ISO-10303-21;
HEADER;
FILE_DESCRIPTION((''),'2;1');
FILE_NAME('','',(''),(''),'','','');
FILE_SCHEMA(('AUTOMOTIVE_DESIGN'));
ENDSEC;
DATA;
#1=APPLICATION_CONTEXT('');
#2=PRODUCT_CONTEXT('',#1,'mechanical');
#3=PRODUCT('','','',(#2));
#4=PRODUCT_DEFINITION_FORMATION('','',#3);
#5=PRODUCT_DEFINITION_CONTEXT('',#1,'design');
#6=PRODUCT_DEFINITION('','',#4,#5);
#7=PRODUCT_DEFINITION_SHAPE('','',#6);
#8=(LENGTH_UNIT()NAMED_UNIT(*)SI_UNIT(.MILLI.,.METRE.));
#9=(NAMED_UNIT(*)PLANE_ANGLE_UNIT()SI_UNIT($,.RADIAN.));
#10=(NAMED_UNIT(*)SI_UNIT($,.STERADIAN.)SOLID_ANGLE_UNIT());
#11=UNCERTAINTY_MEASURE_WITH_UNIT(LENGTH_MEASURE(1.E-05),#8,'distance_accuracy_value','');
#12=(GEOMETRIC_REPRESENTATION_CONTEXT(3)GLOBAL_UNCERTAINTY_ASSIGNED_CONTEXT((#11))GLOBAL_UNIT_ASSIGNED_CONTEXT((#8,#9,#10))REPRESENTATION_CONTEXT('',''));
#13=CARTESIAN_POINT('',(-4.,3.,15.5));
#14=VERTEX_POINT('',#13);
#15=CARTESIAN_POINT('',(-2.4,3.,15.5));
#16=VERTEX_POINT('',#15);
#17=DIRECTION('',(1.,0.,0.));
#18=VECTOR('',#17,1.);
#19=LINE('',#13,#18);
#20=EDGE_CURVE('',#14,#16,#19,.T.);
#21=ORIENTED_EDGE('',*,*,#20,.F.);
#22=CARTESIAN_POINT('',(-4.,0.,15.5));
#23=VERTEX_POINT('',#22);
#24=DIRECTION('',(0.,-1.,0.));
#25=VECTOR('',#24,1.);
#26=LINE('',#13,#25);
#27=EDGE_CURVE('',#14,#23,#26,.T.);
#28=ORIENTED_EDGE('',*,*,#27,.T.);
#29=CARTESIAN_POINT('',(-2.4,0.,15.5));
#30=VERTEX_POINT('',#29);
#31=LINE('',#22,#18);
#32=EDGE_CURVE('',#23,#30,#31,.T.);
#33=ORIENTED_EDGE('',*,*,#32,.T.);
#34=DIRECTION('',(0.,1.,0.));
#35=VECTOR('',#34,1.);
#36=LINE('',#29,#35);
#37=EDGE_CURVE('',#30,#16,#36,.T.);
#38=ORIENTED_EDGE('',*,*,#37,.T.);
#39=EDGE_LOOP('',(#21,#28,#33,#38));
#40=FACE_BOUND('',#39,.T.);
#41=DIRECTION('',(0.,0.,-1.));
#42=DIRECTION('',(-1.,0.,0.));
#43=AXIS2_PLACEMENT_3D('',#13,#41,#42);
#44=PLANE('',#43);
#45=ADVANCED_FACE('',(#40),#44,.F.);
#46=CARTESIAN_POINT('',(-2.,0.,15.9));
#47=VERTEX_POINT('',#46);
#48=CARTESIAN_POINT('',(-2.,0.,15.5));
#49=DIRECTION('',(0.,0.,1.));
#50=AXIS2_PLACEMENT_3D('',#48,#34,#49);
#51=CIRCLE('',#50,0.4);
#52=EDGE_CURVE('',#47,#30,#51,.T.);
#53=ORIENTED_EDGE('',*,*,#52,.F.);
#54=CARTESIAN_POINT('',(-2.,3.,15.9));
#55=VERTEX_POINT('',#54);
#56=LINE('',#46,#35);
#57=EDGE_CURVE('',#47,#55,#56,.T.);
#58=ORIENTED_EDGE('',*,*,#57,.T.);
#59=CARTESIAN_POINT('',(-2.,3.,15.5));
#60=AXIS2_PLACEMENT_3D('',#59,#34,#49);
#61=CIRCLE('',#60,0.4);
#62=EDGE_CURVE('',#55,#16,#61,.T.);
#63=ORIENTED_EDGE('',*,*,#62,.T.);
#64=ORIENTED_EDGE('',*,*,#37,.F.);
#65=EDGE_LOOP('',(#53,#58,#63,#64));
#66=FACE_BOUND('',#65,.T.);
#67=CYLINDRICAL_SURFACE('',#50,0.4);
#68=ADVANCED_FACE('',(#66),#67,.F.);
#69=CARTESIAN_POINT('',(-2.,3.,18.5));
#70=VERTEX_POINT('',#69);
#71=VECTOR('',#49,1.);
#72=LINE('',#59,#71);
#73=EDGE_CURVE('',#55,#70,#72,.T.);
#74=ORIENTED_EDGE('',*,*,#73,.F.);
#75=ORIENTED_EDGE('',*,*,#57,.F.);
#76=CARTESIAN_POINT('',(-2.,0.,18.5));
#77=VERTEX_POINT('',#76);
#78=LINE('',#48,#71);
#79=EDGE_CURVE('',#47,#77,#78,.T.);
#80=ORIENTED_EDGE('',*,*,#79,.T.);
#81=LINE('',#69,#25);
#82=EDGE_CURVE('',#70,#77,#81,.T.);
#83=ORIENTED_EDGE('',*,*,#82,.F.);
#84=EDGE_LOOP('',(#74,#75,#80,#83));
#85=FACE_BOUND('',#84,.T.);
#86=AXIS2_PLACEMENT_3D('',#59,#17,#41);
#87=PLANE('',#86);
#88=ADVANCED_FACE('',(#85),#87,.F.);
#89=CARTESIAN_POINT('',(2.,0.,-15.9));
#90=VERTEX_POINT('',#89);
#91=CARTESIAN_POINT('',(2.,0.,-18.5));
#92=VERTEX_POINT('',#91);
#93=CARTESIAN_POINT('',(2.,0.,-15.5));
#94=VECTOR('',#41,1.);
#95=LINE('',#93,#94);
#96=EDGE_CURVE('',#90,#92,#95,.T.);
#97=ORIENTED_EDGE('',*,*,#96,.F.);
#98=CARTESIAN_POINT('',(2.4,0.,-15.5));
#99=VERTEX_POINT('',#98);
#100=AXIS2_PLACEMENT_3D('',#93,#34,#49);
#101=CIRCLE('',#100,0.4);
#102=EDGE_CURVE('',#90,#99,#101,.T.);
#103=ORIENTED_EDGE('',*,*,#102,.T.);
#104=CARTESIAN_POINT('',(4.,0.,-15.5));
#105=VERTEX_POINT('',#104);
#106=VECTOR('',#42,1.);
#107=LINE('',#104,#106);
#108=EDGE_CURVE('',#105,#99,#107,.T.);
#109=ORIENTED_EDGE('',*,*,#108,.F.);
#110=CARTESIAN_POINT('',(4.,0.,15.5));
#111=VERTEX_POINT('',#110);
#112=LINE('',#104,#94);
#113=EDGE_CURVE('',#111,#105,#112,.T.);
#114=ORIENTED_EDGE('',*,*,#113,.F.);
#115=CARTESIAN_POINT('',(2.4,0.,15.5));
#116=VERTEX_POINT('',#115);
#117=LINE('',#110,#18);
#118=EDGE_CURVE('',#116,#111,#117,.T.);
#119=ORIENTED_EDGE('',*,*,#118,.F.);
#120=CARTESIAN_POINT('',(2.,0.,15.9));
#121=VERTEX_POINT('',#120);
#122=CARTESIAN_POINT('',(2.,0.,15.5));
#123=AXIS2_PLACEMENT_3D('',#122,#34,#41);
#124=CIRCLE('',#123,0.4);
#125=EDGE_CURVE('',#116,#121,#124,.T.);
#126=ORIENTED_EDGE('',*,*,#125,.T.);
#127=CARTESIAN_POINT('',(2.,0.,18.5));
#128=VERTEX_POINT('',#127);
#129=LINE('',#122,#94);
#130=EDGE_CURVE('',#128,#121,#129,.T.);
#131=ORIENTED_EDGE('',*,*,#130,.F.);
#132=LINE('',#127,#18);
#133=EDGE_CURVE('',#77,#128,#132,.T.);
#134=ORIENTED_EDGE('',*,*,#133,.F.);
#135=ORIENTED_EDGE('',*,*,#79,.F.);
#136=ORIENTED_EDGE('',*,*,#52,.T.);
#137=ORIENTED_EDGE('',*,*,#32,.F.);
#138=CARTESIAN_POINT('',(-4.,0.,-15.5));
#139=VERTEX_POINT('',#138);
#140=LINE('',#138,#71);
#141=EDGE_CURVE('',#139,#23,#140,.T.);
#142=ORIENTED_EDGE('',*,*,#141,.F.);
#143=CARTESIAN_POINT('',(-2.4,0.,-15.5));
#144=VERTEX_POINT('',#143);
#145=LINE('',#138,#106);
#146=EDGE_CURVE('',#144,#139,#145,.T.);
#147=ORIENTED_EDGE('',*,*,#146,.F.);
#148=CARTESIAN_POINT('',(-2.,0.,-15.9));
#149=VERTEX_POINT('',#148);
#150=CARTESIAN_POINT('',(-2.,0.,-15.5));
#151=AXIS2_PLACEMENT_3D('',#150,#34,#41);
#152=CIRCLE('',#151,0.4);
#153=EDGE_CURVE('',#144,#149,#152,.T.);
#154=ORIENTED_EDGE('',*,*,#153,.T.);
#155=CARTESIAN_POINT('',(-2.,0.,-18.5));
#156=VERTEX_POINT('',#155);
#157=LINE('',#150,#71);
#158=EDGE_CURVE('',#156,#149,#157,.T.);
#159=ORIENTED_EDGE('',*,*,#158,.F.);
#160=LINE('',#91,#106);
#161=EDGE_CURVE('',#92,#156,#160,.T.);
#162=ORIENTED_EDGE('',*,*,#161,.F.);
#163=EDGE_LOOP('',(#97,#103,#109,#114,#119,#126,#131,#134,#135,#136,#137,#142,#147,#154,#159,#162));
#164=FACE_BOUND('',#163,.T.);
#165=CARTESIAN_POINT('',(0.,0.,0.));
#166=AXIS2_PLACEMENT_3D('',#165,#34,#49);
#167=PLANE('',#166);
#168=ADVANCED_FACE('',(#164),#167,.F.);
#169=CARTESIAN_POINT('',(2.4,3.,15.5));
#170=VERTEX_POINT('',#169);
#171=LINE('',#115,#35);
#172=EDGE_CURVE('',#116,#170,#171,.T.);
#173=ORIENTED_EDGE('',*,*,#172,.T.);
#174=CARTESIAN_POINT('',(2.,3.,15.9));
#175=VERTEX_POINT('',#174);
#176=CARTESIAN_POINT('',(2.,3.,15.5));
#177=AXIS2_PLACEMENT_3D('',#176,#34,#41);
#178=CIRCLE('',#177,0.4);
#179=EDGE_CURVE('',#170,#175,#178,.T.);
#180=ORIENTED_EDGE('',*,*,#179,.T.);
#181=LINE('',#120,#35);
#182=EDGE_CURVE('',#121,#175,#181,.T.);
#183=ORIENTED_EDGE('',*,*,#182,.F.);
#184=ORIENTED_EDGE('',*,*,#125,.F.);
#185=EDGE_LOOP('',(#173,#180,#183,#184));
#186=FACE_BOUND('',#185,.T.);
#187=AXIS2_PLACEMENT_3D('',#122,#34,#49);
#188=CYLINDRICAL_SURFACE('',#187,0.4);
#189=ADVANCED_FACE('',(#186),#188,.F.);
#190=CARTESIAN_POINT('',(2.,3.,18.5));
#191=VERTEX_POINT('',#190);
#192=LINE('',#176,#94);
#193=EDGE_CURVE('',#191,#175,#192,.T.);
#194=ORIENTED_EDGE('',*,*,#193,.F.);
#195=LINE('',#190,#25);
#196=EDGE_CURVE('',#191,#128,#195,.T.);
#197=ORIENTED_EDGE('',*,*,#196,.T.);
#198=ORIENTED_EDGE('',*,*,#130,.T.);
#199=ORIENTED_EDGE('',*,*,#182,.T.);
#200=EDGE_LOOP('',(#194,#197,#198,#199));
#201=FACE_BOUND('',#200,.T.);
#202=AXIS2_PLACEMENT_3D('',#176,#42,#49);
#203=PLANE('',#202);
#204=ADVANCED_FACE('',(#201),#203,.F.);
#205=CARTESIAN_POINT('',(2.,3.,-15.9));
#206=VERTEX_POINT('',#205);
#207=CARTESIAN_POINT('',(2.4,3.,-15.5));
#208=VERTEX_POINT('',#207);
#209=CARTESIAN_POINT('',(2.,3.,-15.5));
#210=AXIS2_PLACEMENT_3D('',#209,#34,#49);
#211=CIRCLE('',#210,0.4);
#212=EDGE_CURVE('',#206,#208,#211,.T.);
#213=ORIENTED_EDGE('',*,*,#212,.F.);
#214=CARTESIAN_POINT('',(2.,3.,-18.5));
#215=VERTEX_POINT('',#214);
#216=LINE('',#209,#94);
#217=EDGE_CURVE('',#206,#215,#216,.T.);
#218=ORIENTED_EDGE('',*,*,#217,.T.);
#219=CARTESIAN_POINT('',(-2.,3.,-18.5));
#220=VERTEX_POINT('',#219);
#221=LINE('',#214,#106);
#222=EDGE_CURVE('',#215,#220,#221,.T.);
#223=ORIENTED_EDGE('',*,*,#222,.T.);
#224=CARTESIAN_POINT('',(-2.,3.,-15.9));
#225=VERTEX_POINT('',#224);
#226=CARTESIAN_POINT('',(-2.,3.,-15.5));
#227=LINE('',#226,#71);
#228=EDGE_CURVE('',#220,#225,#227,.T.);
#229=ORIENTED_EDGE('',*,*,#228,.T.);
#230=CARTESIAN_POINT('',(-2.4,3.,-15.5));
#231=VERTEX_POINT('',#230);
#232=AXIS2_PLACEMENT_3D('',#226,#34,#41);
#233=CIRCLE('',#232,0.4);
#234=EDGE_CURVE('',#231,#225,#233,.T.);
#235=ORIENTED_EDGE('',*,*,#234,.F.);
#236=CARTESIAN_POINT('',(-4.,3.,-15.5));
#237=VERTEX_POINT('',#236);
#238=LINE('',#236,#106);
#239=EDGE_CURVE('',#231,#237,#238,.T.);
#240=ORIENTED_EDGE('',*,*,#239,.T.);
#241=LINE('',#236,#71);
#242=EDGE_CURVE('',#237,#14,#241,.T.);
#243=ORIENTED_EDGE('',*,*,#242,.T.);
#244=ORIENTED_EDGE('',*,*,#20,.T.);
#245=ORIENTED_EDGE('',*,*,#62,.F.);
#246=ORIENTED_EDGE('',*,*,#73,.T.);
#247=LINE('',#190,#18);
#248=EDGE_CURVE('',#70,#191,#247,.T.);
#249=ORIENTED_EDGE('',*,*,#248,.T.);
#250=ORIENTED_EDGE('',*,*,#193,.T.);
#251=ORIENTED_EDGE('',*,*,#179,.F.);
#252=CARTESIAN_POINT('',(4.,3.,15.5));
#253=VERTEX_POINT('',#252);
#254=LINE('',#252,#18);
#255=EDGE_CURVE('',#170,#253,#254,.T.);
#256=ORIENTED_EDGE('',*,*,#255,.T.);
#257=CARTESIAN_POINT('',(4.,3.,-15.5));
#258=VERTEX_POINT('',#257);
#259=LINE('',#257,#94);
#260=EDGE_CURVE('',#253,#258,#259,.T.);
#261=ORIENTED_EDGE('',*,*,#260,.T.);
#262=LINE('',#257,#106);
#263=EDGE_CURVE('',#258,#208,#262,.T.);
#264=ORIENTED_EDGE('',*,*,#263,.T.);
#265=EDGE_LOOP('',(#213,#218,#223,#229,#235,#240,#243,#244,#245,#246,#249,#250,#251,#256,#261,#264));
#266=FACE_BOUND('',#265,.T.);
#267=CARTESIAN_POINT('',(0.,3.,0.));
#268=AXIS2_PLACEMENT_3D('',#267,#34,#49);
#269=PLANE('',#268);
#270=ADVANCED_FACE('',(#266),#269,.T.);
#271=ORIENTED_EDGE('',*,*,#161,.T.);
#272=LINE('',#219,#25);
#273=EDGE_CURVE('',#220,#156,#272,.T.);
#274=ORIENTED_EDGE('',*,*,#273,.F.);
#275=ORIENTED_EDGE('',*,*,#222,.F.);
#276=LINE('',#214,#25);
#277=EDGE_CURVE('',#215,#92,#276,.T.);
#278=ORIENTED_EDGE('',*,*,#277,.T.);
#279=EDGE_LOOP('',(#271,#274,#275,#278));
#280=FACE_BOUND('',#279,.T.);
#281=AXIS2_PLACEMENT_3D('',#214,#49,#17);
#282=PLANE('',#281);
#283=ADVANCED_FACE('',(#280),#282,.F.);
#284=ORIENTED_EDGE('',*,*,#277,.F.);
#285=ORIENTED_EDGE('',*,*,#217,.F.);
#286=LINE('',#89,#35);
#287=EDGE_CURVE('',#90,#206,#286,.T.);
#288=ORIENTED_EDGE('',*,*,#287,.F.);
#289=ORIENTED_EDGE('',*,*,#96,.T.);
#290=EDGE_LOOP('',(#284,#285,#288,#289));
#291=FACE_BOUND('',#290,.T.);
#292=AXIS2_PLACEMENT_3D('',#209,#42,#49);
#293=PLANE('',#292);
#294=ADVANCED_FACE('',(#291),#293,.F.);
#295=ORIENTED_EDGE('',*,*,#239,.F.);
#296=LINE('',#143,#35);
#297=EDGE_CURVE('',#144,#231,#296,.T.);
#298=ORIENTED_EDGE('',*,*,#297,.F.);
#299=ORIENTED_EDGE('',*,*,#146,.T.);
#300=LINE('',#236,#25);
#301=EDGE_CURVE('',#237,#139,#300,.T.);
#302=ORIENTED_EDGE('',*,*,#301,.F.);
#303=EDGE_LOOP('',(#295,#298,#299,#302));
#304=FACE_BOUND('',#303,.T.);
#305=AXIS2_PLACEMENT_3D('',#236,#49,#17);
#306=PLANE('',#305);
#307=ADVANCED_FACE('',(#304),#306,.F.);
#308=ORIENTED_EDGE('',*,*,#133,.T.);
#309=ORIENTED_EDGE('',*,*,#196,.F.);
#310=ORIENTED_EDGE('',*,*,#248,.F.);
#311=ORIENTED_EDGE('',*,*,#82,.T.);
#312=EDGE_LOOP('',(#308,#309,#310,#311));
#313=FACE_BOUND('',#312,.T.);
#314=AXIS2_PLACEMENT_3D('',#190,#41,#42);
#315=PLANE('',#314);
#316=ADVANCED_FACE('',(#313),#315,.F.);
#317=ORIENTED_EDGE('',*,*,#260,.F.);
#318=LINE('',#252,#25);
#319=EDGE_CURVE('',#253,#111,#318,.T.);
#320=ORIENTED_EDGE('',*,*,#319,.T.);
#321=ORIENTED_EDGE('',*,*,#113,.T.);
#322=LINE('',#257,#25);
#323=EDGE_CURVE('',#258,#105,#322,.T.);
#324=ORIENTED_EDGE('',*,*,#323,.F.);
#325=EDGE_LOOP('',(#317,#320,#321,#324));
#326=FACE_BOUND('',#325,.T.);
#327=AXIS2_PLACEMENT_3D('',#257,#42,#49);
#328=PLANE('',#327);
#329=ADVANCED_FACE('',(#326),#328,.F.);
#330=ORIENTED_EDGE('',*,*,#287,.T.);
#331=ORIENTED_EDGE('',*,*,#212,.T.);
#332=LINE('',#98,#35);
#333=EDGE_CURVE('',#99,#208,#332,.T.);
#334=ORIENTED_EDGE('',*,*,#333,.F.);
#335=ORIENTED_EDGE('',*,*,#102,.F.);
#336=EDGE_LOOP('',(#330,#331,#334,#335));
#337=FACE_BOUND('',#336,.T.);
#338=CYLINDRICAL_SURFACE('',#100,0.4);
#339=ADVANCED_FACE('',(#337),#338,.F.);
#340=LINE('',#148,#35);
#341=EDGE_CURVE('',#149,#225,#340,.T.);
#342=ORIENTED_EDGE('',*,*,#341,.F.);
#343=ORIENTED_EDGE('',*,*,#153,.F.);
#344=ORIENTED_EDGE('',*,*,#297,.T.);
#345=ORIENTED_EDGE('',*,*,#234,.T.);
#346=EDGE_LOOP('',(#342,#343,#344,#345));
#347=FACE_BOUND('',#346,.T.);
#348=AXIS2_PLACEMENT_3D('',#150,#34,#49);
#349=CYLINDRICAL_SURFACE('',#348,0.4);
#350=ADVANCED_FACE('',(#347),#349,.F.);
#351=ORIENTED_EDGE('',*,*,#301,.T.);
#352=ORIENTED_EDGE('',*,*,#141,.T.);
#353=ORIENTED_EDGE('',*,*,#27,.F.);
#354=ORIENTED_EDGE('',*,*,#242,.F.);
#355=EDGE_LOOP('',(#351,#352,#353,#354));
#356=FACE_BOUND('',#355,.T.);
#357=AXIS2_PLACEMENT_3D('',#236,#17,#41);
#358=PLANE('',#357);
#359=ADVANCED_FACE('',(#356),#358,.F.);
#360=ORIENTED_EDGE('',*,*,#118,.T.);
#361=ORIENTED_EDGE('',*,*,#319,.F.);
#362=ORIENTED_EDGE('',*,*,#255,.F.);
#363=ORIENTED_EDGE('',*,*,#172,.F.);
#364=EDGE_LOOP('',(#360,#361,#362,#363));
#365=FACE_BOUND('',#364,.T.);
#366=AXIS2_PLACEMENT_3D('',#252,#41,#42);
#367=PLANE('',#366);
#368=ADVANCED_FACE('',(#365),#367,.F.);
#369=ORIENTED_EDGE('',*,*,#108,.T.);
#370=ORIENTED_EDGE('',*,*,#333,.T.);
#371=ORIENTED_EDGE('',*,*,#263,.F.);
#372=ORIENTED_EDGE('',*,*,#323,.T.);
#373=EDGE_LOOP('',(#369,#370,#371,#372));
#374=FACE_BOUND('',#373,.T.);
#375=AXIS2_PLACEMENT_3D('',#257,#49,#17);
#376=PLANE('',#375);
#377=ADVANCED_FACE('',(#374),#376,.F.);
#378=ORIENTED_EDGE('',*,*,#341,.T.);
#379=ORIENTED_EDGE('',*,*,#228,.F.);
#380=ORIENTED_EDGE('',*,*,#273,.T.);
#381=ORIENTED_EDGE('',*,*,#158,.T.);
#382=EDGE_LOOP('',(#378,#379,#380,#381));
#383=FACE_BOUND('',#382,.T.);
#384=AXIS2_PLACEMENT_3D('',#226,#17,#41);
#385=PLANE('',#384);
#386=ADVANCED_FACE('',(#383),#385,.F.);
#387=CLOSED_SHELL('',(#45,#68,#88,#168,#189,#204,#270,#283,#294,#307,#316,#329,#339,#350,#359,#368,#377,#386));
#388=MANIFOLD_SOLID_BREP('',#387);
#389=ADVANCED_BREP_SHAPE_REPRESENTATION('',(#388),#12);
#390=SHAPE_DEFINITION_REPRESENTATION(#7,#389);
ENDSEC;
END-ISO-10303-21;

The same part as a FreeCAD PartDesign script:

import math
import FreeCAD as App
import Part
import Sketcher

doc = App.newDocument("Part")
params = doc.addObject("Spreadsheet::Sheet", "Params")
for row, (alias, value) in enumerate([
    ("sketch1_width", "2 mm"),
    ("sketch1_width2", "4 mm"),
    ("sketch1_height", "31 mm"),
    ("sketch1_height2", "3 mm"),
    ("pad1_length", "3 mm"),
    ("sketch2_radius", "0.4 mm"),
    ("pocket1_length", "3 mm"),
], start=1):
    params.set(f"A{row}", alias)
    params.set(f"B{row}", "=" + value)
    params.setAlias(f"B{row}", alias)

body = doc.addObject("PartDesign::Body", "Body")

# Sketch on XZ plane
sketch1 = body.newObject("Sketcher::SketchObject", "Sketch")
sketch1.AttachmentSupport = (doc.getObject("XZ_Plane"), [""])
sketch1.MapMode = "FlatFace"
sketch1.addGeometry([
    Part.LineSegment(App.Vector(4, 15.5, 0), App.Vector(4, -15.5, 0)),  # 0
    Part.LineSegment(App.Vector(4, -15.5, 0), App.Vector(2, -15.5, 0)),  # 1
    Part.LineSegment(App.Vector(2, -15.5, 0), App.Vector(2, -18.5, 0)),  # 2
    Part.LineSegment(App.Vector(2, -18.5, 0), App.Vector(-2, -18.5, 0)),  # 3
    Part.LineSegment(App.Vector(-2, -18.5, 0), App.Vector(-2, -15.5, 0)),  # 4
    Part.LineSegment(App.Vector(-2, -15.5, 0), App.Vector(-4, -15.5, 0)),  # 5
    Part.LineSegment(App.Vector(-4, -15.5, 0), App.Vector(-4, 15.5, 0)),  # 6
    Part.LineSegment(App.Vector(-4, 15.5, 0), App.Vector(-2, 15.5, 0)),  # 7
    Part.LineSegment(App.Vector(-2, 15.5, 0), App.Vector(-2, 18.5, 0)),  # 8
    Part.LineSegment(App.Vector(-2, 18.5, 0), App.Vector(2, 18.5, 0)),  # 9
    Part.LineSegment(App.Vector(2, 18.5, 0), App.Vector(2, 15.5, 0)),  # 10
    Part.LineSegment(App.Vector(2, 15.5, 0), App.Vector(4, 15.5, 0)),  # 11
], False)
sketch1.addConstraint([
    Sketcher.Constraint("Coincident", 0, 2, 1, 1),
    Sketcher.Constraint("Coincident", 1, 2, 2, 1),
    Sketcher.Constraint("Coincident", 2, 2, 3, 1),
    Sketcher.Constraint("Coincident", 3, 2, 4, 1),
    Sketcher.Constraint("Coincident", 4, 2, 5, 1),
    Sketcher.Constraint("Coincident", 5, 2, 6, 1),
    Sketcher.Constraint("Coincident", 6, 2, 7, 1),
    Sketcher.Constraint("Coincident", 7, 2, 8, 1),
    Sketcher.Constraint("Coincident", 8, 2, 9, 1),
    Sketcher.Constraint("Coincident", 9, 2, 10, 1),
    Sketcher.Constraint("Coincident", 10, 2, 11, 1),
    Sketcher.Constraint("Coincident", 11, 2, 0, 1),
    Sketcher.Constraint("Vertical", 0),
    Sketcher.Constraint("Horizontal", 1),
    Sketcher.Constraint("Vertical", 2),
    Sketcher.Constraint("Horizontal", 3),
    Sketcher.Constraint("Vertical", 4),
    Sketcher.Constraint("Horizontal", 5),
    Sketcher.Constraint("Vertical", 6),
    Sketcher.Constraint("Horizontal", 7),
    Sketcher.Constraint("Vertical", 8),
    Sketcher.Constraint("Horizontal", 9),
    Sketcher.Constraint("Vertical", 10),
    Sketcher.Constraint("Horizontal", 11),
    Sketcher.Constraint("Symmetric", 0, 2, 6, 2, -1, 1),
    Sketcher.Constraint("Symmetric", 2, 2, 8, 2, -1, 1),
    Sketcher.Constraint("Symmetric", 4, 2, 10, 2, -1, 1),
    Sketcher.Constraint("Symmetric", 1, 2, 4, 2, -2),
    Sketcher.Constraint("DistanceX", 1, 2, 1, 1, 2.0),
    Sketcher.Constraint("DistanceX", 3, 2, 3, 1, 4.0),
    Sketcher.Constraint("DistanceY", 0, 2, 0, 1, 31.0),
    Sketcher.Constraint("DistanceY", 2, 2, 2, 1, 3.0),
])
sketch1.setExpression("Constraints[28]", "Params.sketch1_width")
sketch1.setExpression("Constraints[29]", "Params.sketch1_width2")
sketch1.setExpression("Constraints[30]", "Params.sketch1_height")
sketch1.setExpression("Constraints[31]", "Params.sketch1_height2")
pad1 = body.newObject("PartDesign::Pad", "Pad")
pad1.Profile = sketch1
pad1.setExpression("Length", "Params.pad1_length")
pad1.Reversed = True

# Sketch on XZ plane
sketch2 = body.newObject("Sketcher::SketchObject", "Sketch001")
sketch2.AttachmentSupport = (doc.getObject("XZ_Plane"), [""])
sketch2.MapMode = "FlatFace"
sketch2.AttachmentOffset = App.Placement(App.Vector(0, 0, -3), App.Rotation())
sketch2.addGeometry([
    Part.LineSegment(App.Vector(2, -15.5, 0), App.Vector(2, -15.9, 0)),  # 0
    Part.ArcOfCircle(Part.Circle(App.Vector(2, -15.5, 0), App.Vector(0, 0, 1), 0.4), math.radians(0), math.radians(270)),  # 1
    Part.LineSegment(App.Vector(2.4, -15.5, 0), App.Vector(2, -15.5, 0)),  # 2
    Part.LineSegment(App.Vector(-2, -15.5, 0), App.Vector(-2.4, -15.5, 0)),  # 3
    Part.ArcOfCircle(Part.Circle(App.Vector(-2, -15.5, 0), App.Vector(0, 0, 1), 0.4), math.radians(-90), math.radians(180)),  # 4
    Part.LineSegment(App.Vector(-2, -15.9, 0), App.Vector(-2, -15.5, 0)),  # 5
    Part.LineSegment(App.Vector(-2, 15.5, 0), App.Vector(-2, 15.9, 0)),  # 6
    Part.ArcOfCircle(Part.Circle(App.Vector(-2, 15.5, 0), App.Vector(0, 0, 1), 0.4), math.radians(180), math.radians(450)),  # 7
    Part.LineSegment(App.Vector(-2.4, 15.5, 0), App.Vector(-2, 15.5, 0)),  # 8
    Part.LineSegment(App.Vector(2, 15.5, 0), App.Vector(2.4, 15.5, 0)),  # 9
    Part.ArcOfCircle(Part.Circle(App.Vector(2, 15.5, 0), App.Vector(0, 0, 1), 0.4), math.radians(90), math.radians(360)),  # 10
    Part.LineSegment(App.Vector(2, 15.9, 0), App.Vector(2, 15.5, 0)),  # 11
], False)
sketch2.addConstraint([
    Sketcher.Constraint("Coincident", 0, 2, 1, 2),
    Sketcher.Constraint("Coincident", 1, 1, 2, 1),
    Sketcher.Constraint("Coincident", 2, 2, 0, 1),
    Sketcher.Constraint("Coincident", 3, 2, 4, 2),
    Sketcher.Constraint("Coincident", 4, 1, 5, 1),
    Sketcher.Constraint("Coincident", 5, 2, 3, 1),
    Sketcher.Constraint("Coincident", 6, 2, 7, 2),
    Sketcher.Constraint("Coincident", 7, 1, 8, 1),
    Sketcher.Constraint("Coincident", 8, 2, 6, 1),
    Sketcher.Constraint("Coincident", 9, 2, 10, 2),
    Sketcher.Constraint("Coincident", 10, 1, 11, 1),
    Sketcher.Constraint("Coincident", 11, 2, 9, 1),
    Sketcher.Constraint("Vertical", 0),
    Sketcher.Constraint("Horizontal", 2),
    Sketcher.Constraint("Horizontal", 3),
    Sketcher.Constraint("Vertical", 5),
    Sketcher.Constraint("Vertical", 6),
    Sketcher.Constraint("Horizontal", 8),
    Sketcher.Constraint("Horizontal", 9),
    Sketcher.Constraint("Vertical", 11),
    Sketcher.Constraint("Coincident", 2, 2, 1, 3),
    Sketcher.Constraint("Coincident", 5, 2, 4, 3),
    Sketcher.Constraint("Coincident", 8, 2, 7, 3),
    Sketcher.Constraint("Coincident", 11, 2, 10, 3),
    Sketcher.Constraint("Equal", 1, 4),
    Sketcher.Constraint("Equal", 4, 7),
    Sketcher.Constraint("Equal", 7, 10),
    Sketcher.Constraint("Symmetric", 1, 3, 7, 3, -1, 1),
    Sketcher.Constraint("Symmetric", 4, 3, 10, 3, -1, 1),
    Sketcher.Constraint("Symmetric", 1, 3, 4, 3, -2),
    Sketcher.Constraint("Radius", 1, 0.4),
    Sketcher.Constraint("DistanceX", -1, 1, 1, 3, 2.0),
    Sketcher.Constraint("DistanceY", 4, 3, 7, 3, 31.0),
])
sketch2.setExpression("Constraints[30]", "Params.sketch2_radius")
pocket1 = body.newObject("PartDesign::Pocket", "Pocket")
pocket1.Profile = sketch2
pocket1.setExpression("Length", "Params.pocket1_length")
pocket1.Reversed = True

doc.recompute()
